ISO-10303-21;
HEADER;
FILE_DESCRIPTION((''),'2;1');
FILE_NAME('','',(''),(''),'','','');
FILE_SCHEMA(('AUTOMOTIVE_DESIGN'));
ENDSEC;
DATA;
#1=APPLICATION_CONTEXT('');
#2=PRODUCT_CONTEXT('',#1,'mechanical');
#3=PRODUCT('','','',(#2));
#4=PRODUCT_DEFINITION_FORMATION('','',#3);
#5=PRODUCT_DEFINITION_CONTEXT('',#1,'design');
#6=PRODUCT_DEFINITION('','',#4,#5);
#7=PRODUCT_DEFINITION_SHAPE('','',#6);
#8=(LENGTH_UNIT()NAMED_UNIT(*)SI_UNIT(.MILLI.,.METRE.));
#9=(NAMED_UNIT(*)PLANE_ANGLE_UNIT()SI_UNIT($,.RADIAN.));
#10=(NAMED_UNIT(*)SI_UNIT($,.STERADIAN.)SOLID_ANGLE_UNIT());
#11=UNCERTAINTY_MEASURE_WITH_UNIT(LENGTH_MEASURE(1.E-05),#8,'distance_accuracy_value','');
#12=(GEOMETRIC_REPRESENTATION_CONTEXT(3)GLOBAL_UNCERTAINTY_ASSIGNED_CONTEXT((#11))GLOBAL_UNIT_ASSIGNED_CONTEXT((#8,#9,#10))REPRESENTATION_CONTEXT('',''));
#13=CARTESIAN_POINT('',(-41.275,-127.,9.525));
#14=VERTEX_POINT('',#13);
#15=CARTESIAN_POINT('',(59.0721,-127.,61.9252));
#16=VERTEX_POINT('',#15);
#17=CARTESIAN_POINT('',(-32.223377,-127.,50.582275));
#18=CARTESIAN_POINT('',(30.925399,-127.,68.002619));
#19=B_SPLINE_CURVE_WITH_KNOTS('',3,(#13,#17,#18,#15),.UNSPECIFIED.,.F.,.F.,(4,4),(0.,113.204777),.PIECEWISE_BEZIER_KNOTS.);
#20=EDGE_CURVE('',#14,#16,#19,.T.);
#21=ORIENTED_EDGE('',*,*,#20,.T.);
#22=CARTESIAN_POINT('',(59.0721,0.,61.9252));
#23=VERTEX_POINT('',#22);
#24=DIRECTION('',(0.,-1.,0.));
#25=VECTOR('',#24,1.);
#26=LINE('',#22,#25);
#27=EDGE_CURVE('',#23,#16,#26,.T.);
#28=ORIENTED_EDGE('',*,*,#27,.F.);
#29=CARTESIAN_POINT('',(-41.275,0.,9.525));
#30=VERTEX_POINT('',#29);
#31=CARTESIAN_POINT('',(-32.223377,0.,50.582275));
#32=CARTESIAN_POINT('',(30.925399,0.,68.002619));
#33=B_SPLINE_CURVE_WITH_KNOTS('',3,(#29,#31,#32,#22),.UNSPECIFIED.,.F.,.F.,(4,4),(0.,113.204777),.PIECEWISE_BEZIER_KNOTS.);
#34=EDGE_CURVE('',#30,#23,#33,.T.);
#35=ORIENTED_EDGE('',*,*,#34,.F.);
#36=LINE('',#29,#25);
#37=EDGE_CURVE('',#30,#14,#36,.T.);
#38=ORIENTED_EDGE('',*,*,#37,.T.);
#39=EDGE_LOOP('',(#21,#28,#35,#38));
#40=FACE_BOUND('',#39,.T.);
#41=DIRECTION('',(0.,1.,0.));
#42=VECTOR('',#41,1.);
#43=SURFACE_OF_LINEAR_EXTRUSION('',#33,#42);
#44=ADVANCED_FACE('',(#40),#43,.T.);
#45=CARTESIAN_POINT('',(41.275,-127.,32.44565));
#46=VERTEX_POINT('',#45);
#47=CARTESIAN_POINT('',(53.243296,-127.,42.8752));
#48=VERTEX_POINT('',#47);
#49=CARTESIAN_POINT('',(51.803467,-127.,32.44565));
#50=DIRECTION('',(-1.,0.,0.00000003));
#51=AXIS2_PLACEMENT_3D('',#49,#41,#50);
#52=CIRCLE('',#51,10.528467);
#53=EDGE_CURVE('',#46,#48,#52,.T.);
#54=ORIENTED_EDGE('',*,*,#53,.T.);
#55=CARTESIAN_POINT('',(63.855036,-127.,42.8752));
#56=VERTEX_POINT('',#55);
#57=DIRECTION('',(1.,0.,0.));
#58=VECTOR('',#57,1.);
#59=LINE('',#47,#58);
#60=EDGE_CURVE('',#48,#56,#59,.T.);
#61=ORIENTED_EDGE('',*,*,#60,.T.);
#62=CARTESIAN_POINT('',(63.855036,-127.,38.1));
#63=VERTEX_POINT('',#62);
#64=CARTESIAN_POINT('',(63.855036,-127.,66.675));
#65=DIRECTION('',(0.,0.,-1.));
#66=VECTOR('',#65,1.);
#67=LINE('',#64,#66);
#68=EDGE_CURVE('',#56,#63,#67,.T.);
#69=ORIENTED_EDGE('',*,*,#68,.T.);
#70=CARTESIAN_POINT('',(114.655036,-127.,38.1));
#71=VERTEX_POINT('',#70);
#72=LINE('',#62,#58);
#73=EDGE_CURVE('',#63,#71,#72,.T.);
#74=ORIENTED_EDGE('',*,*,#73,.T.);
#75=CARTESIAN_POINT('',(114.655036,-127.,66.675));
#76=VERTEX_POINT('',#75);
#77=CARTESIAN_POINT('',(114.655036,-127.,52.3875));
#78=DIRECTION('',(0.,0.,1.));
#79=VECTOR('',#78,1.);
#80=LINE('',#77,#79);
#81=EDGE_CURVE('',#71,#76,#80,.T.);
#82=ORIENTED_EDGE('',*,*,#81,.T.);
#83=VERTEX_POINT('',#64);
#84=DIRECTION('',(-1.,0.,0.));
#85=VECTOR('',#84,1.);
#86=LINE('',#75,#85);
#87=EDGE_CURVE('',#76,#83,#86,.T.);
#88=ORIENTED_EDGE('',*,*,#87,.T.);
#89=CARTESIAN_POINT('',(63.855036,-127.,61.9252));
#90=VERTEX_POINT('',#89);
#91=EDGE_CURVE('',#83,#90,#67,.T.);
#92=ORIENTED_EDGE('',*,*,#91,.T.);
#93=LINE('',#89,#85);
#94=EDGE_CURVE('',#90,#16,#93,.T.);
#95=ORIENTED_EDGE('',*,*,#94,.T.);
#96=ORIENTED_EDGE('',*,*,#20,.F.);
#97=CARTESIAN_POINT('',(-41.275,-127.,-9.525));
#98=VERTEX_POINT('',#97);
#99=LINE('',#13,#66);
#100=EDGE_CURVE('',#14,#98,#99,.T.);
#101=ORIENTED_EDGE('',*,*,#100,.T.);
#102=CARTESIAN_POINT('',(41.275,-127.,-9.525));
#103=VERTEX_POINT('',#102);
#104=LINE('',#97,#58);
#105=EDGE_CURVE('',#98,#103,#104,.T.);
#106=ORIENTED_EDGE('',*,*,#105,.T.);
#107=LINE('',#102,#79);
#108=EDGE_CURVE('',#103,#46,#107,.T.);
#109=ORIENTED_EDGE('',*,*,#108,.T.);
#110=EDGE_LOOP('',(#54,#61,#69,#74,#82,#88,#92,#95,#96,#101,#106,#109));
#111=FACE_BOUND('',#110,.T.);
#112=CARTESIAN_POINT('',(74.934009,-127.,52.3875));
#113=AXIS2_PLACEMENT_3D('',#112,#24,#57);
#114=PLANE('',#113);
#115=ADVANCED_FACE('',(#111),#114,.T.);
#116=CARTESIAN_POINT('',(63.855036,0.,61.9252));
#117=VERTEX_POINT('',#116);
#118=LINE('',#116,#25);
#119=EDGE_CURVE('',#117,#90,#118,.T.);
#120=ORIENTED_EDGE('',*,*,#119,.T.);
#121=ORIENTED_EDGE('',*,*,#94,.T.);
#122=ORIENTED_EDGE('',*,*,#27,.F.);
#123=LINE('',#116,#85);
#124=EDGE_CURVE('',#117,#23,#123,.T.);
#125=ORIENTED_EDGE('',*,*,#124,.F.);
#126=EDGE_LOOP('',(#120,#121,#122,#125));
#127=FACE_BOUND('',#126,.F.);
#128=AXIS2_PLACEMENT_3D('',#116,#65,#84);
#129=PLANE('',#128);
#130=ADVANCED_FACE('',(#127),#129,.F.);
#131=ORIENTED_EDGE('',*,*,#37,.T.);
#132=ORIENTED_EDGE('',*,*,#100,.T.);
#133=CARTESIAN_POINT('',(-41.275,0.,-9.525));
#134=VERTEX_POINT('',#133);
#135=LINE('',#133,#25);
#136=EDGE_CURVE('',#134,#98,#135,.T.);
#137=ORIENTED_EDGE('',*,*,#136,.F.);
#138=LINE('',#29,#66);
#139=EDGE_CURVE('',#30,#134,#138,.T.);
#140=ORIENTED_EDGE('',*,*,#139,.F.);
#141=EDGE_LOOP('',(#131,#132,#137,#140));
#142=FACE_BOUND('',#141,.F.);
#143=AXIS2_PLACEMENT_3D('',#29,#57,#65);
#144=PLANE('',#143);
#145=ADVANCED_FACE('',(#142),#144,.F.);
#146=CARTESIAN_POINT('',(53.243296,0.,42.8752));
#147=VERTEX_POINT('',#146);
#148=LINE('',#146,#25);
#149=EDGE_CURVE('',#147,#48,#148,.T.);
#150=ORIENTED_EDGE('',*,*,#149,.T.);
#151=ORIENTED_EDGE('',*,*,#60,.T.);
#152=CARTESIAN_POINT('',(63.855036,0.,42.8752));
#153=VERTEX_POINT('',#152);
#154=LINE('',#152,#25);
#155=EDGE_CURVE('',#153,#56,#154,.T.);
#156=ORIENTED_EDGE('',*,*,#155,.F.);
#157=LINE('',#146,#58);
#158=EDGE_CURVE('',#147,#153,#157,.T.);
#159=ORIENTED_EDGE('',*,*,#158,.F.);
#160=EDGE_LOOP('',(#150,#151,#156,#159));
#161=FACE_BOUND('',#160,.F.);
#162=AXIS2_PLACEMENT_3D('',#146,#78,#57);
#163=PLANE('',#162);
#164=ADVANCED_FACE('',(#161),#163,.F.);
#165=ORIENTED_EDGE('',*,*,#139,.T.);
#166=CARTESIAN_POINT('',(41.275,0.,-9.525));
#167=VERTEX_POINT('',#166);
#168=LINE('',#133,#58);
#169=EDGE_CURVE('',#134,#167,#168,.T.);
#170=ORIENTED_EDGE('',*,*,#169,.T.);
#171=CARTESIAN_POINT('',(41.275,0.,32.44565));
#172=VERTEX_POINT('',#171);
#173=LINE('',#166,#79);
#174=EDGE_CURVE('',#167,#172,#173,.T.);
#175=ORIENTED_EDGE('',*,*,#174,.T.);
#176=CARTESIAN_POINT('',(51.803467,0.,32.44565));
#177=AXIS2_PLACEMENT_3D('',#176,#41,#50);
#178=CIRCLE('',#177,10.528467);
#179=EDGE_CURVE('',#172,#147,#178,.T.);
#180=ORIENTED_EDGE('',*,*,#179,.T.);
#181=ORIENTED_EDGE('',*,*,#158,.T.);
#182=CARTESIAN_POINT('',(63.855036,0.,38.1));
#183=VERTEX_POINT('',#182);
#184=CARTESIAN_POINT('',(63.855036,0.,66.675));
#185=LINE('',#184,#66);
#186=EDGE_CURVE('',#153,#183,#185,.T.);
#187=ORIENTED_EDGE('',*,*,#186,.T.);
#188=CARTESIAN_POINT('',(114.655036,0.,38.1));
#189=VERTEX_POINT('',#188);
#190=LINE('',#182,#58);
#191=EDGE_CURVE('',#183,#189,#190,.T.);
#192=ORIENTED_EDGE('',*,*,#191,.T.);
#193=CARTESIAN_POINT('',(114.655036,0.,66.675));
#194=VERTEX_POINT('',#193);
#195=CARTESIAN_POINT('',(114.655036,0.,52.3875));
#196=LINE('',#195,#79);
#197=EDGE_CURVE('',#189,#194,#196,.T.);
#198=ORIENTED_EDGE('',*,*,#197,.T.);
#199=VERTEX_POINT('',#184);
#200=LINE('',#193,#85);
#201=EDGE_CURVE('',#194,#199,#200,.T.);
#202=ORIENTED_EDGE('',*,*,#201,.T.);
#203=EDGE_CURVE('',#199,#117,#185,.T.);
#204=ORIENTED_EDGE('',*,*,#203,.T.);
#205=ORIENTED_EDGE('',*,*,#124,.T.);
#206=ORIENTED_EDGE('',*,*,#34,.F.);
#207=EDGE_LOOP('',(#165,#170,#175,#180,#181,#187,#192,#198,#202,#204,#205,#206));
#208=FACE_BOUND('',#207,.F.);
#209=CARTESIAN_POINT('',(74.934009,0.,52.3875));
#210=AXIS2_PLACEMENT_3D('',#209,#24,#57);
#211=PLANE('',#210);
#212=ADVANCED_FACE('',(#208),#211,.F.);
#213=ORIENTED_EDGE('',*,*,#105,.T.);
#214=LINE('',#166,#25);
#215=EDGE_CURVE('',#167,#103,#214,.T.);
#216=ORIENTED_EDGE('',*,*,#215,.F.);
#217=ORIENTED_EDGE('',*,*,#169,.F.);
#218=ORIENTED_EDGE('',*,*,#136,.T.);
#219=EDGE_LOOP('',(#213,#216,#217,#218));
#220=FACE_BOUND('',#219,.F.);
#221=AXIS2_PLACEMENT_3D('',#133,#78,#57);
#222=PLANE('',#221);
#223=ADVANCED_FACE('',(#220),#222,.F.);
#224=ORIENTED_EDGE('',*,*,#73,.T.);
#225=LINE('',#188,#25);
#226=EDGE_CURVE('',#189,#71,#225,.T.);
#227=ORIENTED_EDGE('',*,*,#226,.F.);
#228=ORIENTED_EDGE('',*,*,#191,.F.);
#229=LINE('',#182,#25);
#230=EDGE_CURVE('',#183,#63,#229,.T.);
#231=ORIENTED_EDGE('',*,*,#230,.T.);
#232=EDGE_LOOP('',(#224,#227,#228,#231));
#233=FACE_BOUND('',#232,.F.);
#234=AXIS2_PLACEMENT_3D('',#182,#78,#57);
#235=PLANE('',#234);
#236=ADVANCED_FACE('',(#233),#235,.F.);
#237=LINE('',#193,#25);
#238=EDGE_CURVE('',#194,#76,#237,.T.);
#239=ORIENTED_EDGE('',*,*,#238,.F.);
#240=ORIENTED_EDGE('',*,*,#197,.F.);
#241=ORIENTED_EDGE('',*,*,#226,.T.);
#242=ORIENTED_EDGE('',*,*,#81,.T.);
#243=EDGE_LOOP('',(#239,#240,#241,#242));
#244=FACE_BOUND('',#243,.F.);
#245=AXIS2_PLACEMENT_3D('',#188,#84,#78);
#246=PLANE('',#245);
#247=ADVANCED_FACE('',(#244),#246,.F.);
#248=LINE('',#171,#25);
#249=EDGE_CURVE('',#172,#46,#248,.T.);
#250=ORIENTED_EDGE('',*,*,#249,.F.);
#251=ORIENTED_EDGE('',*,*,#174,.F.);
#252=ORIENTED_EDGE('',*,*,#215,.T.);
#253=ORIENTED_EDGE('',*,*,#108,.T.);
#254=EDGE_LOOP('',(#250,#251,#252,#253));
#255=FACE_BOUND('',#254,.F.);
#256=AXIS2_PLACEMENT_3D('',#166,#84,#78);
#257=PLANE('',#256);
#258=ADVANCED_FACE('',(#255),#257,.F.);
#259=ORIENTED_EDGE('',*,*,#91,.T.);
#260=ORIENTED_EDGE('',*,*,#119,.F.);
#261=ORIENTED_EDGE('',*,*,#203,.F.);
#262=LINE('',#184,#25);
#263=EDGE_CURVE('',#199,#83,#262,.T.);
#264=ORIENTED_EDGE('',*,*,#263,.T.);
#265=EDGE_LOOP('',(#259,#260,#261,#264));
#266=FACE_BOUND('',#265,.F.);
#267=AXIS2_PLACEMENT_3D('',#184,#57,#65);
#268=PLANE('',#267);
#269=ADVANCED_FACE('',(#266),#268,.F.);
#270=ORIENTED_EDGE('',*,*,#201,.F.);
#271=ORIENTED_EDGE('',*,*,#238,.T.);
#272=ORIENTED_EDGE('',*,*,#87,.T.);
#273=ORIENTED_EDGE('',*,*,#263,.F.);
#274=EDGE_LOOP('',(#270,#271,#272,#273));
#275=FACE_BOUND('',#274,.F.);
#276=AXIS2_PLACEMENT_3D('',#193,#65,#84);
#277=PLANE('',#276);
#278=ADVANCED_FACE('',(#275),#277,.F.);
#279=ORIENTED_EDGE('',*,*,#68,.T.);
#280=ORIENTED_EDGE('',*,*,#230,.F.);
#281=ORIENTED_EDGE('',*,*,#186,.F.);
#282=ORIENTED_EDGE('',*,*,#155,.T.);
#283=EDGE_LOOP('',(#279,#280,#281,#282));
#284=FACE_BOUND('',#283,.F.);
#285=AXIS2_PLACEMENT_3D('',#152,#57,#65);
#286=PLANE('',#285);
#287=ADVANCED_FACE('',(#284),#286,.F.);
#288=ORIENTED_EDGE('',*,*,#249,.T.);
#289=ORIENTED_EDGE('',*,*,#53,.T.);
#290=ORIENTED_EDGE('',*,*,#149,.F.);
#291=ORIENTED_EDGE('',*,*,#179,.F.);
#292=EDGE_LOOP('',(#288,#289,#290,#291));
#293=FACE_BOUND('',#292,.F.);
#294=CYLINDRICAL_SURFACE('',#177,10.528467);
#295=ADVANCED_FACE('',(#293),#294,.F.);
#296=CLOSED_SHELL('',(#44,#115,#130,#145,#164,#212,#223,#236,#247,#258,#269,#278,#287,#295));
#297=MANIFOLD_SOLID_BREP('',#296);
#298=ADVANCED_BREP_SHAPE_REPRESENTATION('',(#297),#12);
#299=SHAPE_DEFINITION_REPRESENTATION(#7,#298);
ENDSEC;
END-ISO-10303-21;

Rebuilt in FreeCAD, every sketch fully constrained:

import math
import FreeCAD as App
import Part
import Sketcher
Q = App.Units.Quantity

doc = App.newDocument("Part")
body = doc.addObject("PartDesign::Body", "Body")

# Sketch on XZ plane
sketch1 = body.newObject("Sketcher::SketchObject", "Sketch")
sketch1.AttachmentSupport = (doc.getObject("XZ_Plane"), [""])
sketch1.MapMode = "FlatFace"
sketch1.addGeometry(Part.LineSegment(App.Vector(63.855036, 66.675, 0), App.Vector(63.855036, 61.9252, 0)), False)
sketch1.addGeometry(Part.LineSegment(App.Vector(63.855036, 61.9252, 0), App.Vector(59.0721, 61.9252, 0)), False)
sketch1.addGeometry(Part.BSplineCurve([App.Vector(-41.275, 9.525, 0), App.Vector(-32.223377, 50.582275, 0), App.Vector(30.925399, 68.002619, 0), App.Vector(59.0721, 61.9252, 0)], [4, 4], [0, 113.204777], False, 3, [1, 1, 1, 1], False), False)
sketch1.addGeometry(Part.LineSegment(App.Vector(-41.275, 9.525, 0), App.Vector(-41.275, -9.525, 0)), False)
sketch1.addGeometry(Part.LineSegment(App.Vector(-41.275, -9.525, 0), App.Vector(41.275, -9.525, 0)), False)
sketch1.addGeometry(Part.LineSegment(App.Vector(41.275, -9.525, 0), App.Vector(41.275, 32.44565, 0)), False)
sketch1.addGeometry(Part.ArcOfCircle(Part.Circle(App.Vector(51.803467, 32.44565, 0), App.Vector(0, 0, 1), 10.528467), math.radians(82.139841), math.radians(179.999998)), False)
sketch1.addGeometry(Part.LineSegment(App.Vector(53.243296, 42.8752, 0), App.Vector(63.855036, 42.8752, 0)), False)
sketch1.addGeometry(Part.LineSegment(App.Vector(63.855036, 42.8752, 0), App.Vector(63.855036, 38.1, 0)), False)
sketch1.addGeometry(Part.LineSegment(App.Vector(63.855036, 38.1, 0), App.Vector(114.655036, 38.1, 0)), False)
sketch1.addGeometry(Part.LineSegment(App.Vector(114.655036, 38.1, 0), App.Vector(114.655036, 66.675, 0)), False)
sketch1.addGeometry(Part.LineSegment(App.Vector(114.655036, 66.675, 0), App.Vector(63.855036, 66.675, 0)), False)
sketch1.addConstraint(Sketcher.Constraint("Block", 2))
sketch1.addConstraint(Sketcher.Constraint("Coincident", 0, 2, 1, 1))
sketch1.addConstraint(Sketcher.Constraint("Coincident", 1, 2, 2, 2))
sketch1.addConstraint(Sketcher.Constraint("Coincident", 2, 1, 3, 1))
sketch1.addConstraint(Sketcher.Constraint("Coincident", 3, 2, 4, 1))
sketch1.addConstraint(Sketcher.Constraint("Coincident", 4, 2, 5, 1))
sketch1.addConstraint(Sketcher.Constraint("Tangent", 5, 2, 6, 2))
sketch1.addConstraint(Sketcher.Constraint("Coincident", 6, 1, 7, 1))
sketch1.addConstraint(Sketcher.Constraint("Coincident", 7, 2, 8, 1))
sketch1.addConstraint(Sketcher.Constraint("Coincident", 8, 2, 9, 1))
sketch1.addConstraint(Sketcher.Constraint("Coincident", 9, 2, 10, 1))
sketch1.addConstraint(Sketcher.Constraint("Coincident", 10, 2, 11, 1))
sketch1.addConstraint(Sketcher.Constraint("Coincident", 11, 2, 0, 1))
sketch1.addConstraint(Sketcher.Constraint("Vertical", 0))
sketch1.addConstraint(Sketcher.Constraint("Horizontal", 1))
sketch1.addConstraint(Sketcher.Constraint("Vertical", 3))
sketch1.addConstraint(Sketcher.Constraint("Horizontal", 4))
sketch1.addConstraint(Sketcher.Constraint("Vertical", 5))
sketch1.addConstraint(Sketcher.Constraint("Horizontal", 7))
sketch1.addConstraint(Sketcher.Constraint("Vertical", 8))
sketch1.addConstraint(Sketcher.Constraint("Horizontal", 9))
sketch1.addConstraint(Sketcher.Constraint("Vertical", 10))
sketch1.addConstraint(Sketcher.Constraint("Horizontal", 11))
sketch1.addConstraint(Sketcher.Constraint("Vertical", 0, 2, 7, 2))
sketch1.addConstraint(Sketcher.Constraint("DistanceX", 9, 1, 9, 2, Q("2 in")))
sketch1.addConstraint(Sketcher.Constraint("DistanceX", 4, 1, 4, 2, Q("3.25 in")))
sketch1.addConstraint(Sketcher.Constraint("DistanceY", 3, 2, 3, 1, Q("0.75 in")))
sketch1.addConstraint(Sketcher.Constraint("DistanceY", -1, 1, 8, 2, Q("1.5 in")))
sketch1.addConstraint(Sketcher.Constraint("DistanceY", 0, 2, 0, 1, Q("0.187 in")))
sketch1.addConstraint(Sketcher.Constraint("DistanceY", 8, 2, 8, 1, Q("0.188 in")))
sketch1.addConstraint(Sketcher.Constraint("Radius", 6, 10.528467))
sketch1.addConstraint(Sketcher.Constraint("DistanceX", 7, 1, 7, 2, 10.61174))
sketch1.addConstraint(Sketcher.Constraint("DistanceY", 5, 1, 5, 2, 41.97065))
pad1 = body.newObject("PartDesign::Pad", "Pad")
pad1.Profile = sketch1
pad1.Length = Q("5 in")

doc.recompute()
